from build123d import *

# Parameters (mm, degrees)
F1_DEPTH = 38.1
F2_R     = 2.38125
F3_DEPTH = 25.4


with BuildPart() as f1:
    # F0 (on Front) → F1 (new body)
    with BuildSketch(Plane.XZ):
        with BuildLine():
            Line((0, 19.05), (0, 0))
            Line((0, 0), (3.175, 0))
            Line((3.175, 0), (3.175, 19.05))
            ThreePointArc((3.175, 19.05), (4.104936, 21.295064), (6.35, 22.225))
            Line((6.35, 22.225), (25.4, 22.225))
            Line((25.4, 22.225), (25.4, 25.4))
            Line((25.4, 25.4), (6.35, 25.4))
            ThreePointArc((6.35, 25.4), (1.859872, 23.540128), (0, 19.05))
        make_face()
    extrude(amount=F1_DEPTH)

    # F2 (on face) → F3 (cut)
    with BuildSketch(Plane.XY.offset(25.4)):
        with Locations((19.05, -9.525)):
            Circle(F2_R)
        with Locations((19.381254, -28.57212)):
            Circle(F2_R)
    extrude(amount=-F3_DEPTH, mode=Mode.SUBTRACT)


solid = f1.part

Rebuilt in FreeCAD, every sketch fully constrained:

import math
import FreeCAD as App
import Part
import Sketcher
from FreeCAD import Vector
Q = App.Units.Quantity

doc = App.newDocument("Part")
body = doc.addObject("PartDesign::Body", "Body")

# Sketch on XZ plane
sketch1 = doc.addObject("Sketcher::SketchObject", "Sketch")
body.addObject(sketch1)
sketch1.AttachmentSupport = (doc.XZ_Plane, [""])
sketch1.MapMode = "FlatFace"
sketch1.addGeometry([
    Part.LineSegment(Vector(0, 19.1, 0), Vector(0, 0, 0)),  # 0
    Part.LineSegment(Vector(0, 0, 0), Vector(3.2, 0, 0)),  # 1
    Part.LineSegment(Vector(3.2, 0, 0), Vector(3.2, 19.1, 0)),  # 2
    Part.ArcOfCircle(Part.Circle(Vector(6.4, 19, 0), Vector(0, 0, 1), 3.2), math.radians(90), math.radians(180)),  # 3
    Part.LineSegment(Vector(6.3, 22.2, 0), Vector(25.4, 22.2, 0)),  # 4
    Part.LineSegment(Vector(25.4, 22.2, 0), Vector(25.4, 25.4, 0)),  # 5
    Part.LineSegment(Vector(25.4, 25.4, 0), Vector(6.3, 25.4, 0)),  # 6
    Part.ArcOfCircle(Part.Circle(Vector(6.4, 19, 0), Vector(0, 0, 1), 6.4), math.radians(90), math.radians(180)),  # 7
], False)
sketch1.addConstraint([
    Sketcher.Constraint("Coincident", 0, 2, 1, 1),
    Sketcher.Constraint("Coincident", 1, 2, 2, 1),
    Sketcher.Constraint("Tangent", 2, 2, 3, 2),
    Sketcher.Constraint("Tangent", 3, 1, 4, 1),
    Sketcher.Constraint("Coincident", 4, 2, 5, 1),
    Sketcher.Constraint("Coincident", 5, 2, 6, 1),
    Sketcher.Constraint("Tangent", 6, 2, 7, 1),
    Sketcher.Constraint("Tangent", 7, 2, 0, 1),
    Sketcher.Constraint("Vertical", 0),
    Sketcher.Constraint("Horizontal", 1),
    Sketcher.Constraint("Vertical", 2),
    Sketcher.Constraint("Horizontal", 4),
    Sketcher.Constraint("Vertical", 5),
    Sketcher.Constraint("Horizontal", 6),
    Sketcher.Constraint("Coincident", 0, 2, -1, 1),
    Sketcher.Constraint("Coincident", 7, 3, 3, 3),
    Sketcher.Constraint("Equal", 6, 0),
    Sketcher.Constraint("Radius", 7, Q("0.25 in")),
    Sketcher.Constraint("DistanceX", -1, 1, 4, 2, Q("1 in")),
    Sketcher.Constraint("Radius", 3, Q("0.125 in")),
])
pad1 = doc.addObject("PartDesign::Pad", "Pad")
body.addObject(pad1)
pad1.Profile = sketch1
pad1.Length = Q("1.5 in")

# Sketch on XY plane
sketch2 = doc.addObject("Sketcher::SketchObject", "Sketch001")
body.addObject(sketch2)
sketch2.AttachmentSupport = (doc.XY_Plane, [""])
sketch2.MapMode = "FlatFace"
sketch2.AttachmentOffset = App.Placement(Vector(0, 0, 1 * 25.4), App.Rotation())
sketch2.addGeometry([
    Part.Circle(Vector(19.1, -9.5, 0), Vector(0, 0, 1), 2.4),
    Part.Circle(Vector(19.4, -28.6, 0), Vector(0, 0, 1), 2.4),
], False)
sketch2.addConstraint([
    Sketcher.Constraint("Equal", 0, 1),
    Sketcher.Constraint("Diameter", 0, Q("0.1875 in")),
    Sketcher.Constraint("DistanceX", -1, 1, 0, 3, Q("0.75 in")),
    Sketcher.Constraint("DistanceY", 0, 3, -1, 1, Q("0.375 in")),
    Sketcher.Constraint("DistanceY", 1, 3, -1, 1, 28.57212),
    Sketcher.Constraint("DistanceX", -1, 1, 1, 3, 19.381254),
])
pocket1 = doc.addObject("PartDesign::Pocket", "Pocket")
body.addObject(pocket1)
pocket1.Profile = sketch2
pocket1.Length = Q("1 in")

doc.recompute()
